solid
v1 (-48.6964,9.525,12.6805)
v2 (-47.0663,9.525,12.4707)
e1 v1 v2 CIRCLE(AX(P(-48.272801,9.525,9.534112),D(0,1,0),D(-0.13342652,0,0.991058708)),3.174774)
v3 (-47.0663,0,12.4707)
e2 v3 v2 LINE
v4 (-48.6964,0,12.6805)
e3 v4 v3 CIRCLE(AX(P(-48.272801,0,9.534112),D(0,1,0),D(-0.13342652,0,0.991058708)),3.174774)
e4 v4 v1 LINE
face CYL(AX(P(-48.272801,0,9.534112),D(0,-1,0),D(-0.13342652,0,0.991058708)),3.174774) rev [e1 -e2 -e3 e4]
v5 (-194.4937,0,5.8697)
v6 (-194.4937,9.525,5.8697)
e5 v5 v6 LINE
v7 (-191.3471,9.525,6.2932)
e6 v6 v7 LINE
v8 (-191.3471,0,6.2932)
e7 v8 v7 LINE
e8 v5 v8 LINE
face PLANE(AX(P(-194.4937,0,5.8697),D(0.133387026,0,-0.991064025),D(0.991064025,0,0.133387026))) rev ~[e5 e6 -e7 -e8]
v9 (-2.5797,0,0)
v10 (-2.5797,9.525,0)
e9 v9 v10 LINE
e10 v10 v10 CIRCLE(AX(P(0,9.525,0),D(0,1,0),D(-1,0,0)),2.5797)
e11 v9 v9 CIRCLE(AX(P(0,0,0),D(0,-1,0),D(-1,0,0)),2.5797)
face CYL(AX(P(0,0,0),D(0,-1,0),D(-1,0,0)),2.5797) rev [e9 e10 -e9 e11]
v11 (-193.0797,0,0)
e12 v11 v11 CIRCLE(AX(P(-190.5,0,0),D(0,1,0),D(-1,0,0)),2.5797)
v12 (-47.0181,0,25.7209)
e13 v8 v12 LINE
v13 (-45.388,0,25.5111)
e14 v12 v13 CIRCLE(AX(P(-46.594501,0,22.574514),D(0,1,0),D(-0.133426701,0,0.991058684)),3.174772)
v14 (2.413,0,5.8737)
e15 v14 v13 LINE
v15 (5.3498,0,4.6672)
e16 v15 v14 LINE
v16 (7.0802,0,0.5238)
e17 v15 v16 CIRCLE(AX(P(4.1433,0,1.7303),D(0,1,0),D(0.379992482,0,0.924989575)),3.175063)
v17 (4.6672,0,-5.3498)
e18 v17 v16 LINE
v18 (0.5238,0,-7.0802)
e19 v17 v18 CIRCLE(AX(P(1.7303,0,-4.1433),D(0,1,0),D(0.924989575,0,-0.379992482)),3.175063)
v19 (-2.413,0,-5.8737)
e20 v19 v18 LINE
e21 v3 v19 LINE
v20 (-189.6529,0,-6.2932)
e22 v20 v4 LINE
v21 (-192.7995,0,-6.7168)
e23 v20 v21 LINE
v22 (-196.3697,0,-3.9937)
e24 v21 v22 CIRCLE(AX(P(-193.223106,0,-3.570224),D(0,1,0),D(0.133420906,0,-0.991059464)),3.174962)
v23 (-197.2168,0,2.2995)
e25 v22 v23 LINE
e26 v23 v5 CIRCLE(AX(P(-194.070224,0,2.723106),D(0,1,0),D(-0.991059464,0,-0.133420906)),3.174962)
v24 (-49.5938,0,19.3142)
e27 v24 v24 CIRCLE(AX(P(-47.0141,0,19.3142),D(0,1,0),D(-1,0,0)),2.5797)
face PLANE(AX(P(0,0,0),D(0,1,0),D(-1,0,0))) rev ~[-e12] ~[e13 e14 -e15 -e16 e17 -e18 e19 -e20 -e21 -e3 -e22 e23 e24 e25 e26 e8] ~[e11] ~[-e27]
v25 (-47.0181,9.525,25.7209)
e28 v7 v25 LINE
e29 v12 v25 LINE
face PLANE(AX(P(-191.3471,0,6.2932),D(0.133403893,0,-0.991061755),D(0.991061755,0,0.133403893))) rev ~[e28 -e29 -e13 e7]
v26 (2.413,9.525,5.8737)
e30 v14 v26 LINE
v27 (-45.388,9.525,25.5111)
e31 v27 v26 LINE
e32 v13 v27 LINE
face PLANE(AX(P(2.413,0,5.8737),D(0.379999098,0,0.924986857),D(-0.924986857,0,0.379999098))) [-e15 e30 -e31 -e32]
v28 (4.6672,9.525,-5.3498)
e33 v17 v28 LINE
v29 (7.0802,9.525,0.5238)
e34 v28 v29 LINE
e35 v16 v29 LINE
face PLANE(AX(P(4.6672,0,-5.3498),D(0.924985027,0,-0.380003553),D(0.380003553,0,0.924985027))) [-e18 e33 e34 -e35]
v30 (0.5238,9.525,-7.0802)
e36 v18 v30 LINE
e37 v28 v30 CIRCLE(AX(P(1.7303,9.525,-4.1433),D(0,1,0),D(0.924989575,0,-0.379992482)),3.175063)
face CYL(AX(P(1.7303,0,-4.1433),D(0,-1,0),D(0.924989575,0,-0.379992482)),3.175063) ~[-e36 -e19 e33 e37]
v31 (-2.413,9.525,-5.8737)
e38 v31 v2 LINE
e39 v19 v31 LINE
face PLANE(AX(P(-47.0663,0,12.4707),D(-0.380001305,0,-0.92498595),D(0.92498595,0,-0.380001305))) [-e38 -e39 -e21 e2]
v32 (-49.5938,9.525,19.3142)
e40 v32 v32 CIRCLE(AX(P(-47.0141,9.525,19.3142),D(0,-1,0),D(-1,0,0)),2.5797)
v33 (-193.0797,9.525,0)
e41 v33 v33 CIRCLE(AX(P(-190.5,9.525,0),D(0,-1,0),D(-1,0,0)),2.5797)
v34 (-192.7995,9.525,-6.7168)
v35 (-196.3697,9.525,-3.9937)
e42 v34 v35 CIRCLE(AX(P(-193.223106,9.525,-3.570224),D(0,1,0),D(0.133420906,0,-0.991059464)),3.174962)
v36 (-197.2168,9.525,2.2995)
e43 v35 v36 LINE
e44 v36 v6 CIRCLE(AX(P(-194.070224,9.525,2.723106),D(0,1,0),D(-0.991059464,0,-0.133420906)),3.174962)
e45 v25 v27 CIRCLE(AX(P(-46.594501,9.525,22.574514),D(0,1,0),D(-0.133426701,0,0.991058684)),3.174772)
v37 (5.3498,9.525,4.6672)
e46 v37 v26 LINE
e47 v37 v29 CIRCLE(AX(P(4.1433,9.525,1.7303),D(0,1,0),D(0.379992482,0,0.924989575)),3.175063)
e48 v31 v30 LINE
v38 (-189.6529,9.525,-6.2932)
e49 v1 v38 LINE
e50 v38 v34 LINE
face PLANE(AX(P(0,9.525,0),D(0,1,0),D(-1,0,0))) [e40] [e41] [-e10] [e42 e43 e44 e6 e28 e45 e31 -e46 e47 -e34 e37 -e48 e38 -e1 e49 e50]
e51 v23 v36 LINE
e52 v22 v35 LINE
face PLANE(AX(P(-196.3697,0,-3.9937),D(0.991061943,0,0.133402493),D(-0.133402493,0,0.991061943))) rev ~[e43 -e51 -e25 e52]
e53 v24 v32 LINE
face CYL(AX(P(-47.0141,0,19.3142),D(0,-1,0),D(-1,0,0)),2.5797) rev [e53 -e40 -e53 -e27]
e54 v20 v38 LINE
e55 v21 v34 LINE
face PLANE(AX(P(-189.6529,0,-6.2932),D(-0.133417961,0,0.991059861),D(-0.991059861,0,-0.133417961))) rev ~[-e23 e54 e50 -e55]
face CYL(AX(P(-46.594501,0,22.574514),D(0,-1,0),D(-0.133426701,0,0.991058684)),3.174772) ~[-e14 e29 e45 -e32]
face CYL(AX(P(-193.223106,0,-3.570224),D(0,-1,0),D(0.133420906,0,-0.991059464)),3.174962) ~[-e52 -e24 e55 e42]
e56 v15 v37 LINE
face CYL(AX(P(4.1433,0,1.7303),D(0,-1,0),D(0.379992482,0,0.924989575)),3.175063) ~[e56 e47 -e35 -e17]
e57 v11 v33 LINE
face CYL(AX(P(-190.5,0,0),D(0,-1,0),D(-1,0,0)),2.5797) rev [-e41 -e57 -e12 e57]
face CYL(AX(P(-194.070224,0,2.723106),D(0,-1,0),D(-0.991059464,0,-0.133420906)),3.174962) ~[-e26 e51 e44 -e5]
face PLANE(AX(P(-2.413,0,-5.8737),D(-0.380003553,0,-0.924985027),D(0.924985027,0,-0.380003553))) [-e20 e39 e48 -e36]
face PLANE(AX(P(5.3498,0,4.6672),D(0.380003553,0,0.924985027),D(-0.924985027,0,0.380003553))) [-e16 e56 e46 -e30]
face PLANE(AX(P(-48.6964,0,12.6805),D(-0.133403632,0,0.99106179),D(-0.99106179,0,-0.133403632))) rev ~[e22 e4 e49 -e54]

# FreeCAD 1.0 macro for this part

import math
import FreeCAD as App
import Part
import Sketcher
Q = App.Units.Quantity

doc = App.newDocument("Part")
body = doc.addObject("PartDesign::Body", "Body")

# Sketch on XZ plane
sketch1 = body.newObject("Sketcher::SketchObject", "Sketch")
sketch1.AttachmentSupport = (doc.getObject("XZ_Plane"), [""])
sketch1.MapMode = "FlatFace"
sketch1.addGeometry(Part.LineSegment(App.Vector(-48.6964, 12.6805, 0), App.Vector(-189.6529, -6.2932, 0)), False)
sketch1.addGeometry(Part.LineSegment(App.Vector(-189.6529, -6.2932, 0), App.Vector(-192.7995, -6.7168, 0)), False)
sketch1.addGeometry(Part.ArcOfCircle(Part.Circle(App.Vector(-193.2231, -3.5702, 0), App.Vector(0, 0, 1), 3.174985), math.radians(-172.33464), math.radians(-82.332852)), False)
sketch1.addGeometry(Part.LineSegment(App.Vector(-196.3697, -3.9937, 0), App.Vector(-197.2168, 2.2995, 0)), False)
sketch1.addGeometry(Part.ArcOfCircle(Part.Circle(App.Vector(-194.0702, 2.7231, 0), App.Vector(0, 0, 1), 3.174985), math.radians(97.66536), math.radians(187.667148)), False)
sketch1.addGeometry(Part.LineSegment(App.Vector(-194.4937, 5.8697, 0), App.Vector(-191.3471, 6.2932, 0)), False)
sketch1.addGeometry(Part.LineSegment(App.Vector(-191.3471, 6.2932, 0), App.Vector(-47.0181, 25.7209, 0)), False)
sketch1.addGeometry(Part.ArcOfCircle(Part.Circle(App.Vector(-46.5945, 22.5743, 0), App.Vector(0, 0, 1), 3.174985), math.radians(67.666097), math.radians(97.667148)), False)
sketch1.addGeometry(Part.LineSegment(App.Vector(-45.388, 25.5111, 0), App.Vector(2.413, 5.8737, 0)), False)
sketch1.addGeometry(Part.LineSegment(App.Vector(2.413, 5.8737, 0), App.Vector(5.3498, 4.6672, 0)), False)
sketch1.addGeometry(Part.ArcOfCircle(Part.Circle(App.Vector(4.1433, 1.7303, 0), App.Vector(0, 0, 1), 3.175063), math.radians(-22.333217), math.radians(67.666783)), False)
sketch1.addGeometry(Part.LineSegment(App.Vector(7.0802, 0.5238, 0), App.Vector(4.6672, -5.3498, 0)), False)
sketch1.addGeometry(Part.ArcOfCircle(Part.Circle(App.Vector(1.7303, -4.1433, 0), App.Vector(0, 0, 1), 3.175063), math.radians(-112.333217), math.radians(-22.333217)), False)
sketch1.addGeometry(Part.LineSegment(App.Vector(0.5238, -7.0802, 0), App.Vector(-2.413, -5.8737, 0)), False)
sketch1.addGeometry(Part.LineSegment(App.Vector(-2.413, -5.8737, 0), App.Vector(-47.0663, 12.4707, 0)), False)
sketch1.addGeometry(Part.ArcOfCircle(Part.Circle(App.Vector(-48.2728, 9.5338, 0), App.Vector(0, 0, 1), 3.175084), math.radians(67.666783), math.radians(97.666907)), False)
sketch1.addGeometry(Part.Circle(App.Vector(0, 0, 0), App.Vector(0, 0, 1), 2.5797), False)
sketch1.addGeometry(Part.Circle(App.Vector(-47.0141, 19.3142, 0), App.Vector(0, 0, 1), 2.5797), False)
sketch1.addGeometry(Part.Circle(App.Vector(-190.5, 0, 0), App.Vector(0, 0, 1), 2.5797), False)
sketch1.addConstraint(Sketcher.Constraint("Coincident", 0, 2, 1, 1))
sketch1.addConstraint(Sketcher.Constraint("Tangent", 1, 2, 2, 2))
sketch1.addConstraint(Sketcher.Constraint("Tangent", 2, 1, 3, 1))
sketch1.addConstraint(Sketcher.Constraint("Tangent", 3, 2, 4, 2))
sketch1.addConstraint(Sketcher.Constraint("Tangent", 4, 1, 5, 1))
sketch1.addConstraint(Sketcher.Constraint("Coincident", 5, 2, 6, 1))
sketch1.addConstraint(Sketcher.Constraint("Tangent", 6, 2, 7, 2))
sketch1.addConstraint(Sketcher.Constraint("Tangent", 7, 1, 8, 1))
sketch1.addConstraint(Sketcher.Constraint("Coincident", 8, 2, 9, 1))
sketch1.addConstraint(Sketcher.Constraint("Tangent", 9, 2, 10, 2))
sketch1.addConstraint(Sketcher.Constraint("Tangent", 10, 1, 11, 1))
sketch1.addConstraint(Sketcher.Constraint("Tangent", 11, 2, 12, 2))
sketch1.addConstraint(Sketcher.Constraint("Tangent", 12, 1, 13, 1))
sketch1.addConstraint(Sketcher.Constraint("Coincident", 13, 2, 14, 1))
sketch1.addConstraint(Sketcher.Constraint("Tangent", 14, 2, 15, 1))
sketch1.addConstraint(Sketcher.Constraint("Tangent", 15, 2, 0, 1))
sketch1.addConstraint(Sketcher.Constraint("Coincident", 16, 3, -1, 1))
sketch1.addConstraint(Sketcher.Constraint("Equal", 2, 4))
sketch1.addConstraint(Sketcher.Constraint("Equal", 4, 7))
sketch1.addConstraint(Sketcher.Constraint("Equal", 7, 10))
sketch1.addConstraint(Sketcher.Constraint("Equal", 10, 12))
sketch1.addConstraint(Sketcher.Constraint("Equal", 12, 15))
sketch1.addConstraint(Sketcher.Constraint("Equal", 16, 17))
sketch1.addConstraint(Sketcher.Constraint("Equal", 17, 18))
sketch1.addConstraint(Sketcher.Constraint("Symmetric", 8, 2, 13, 2, -1, 1))
sketch1.addConstraint(Sketcher.Constraint("PointOnObject", 18, 3, -1))
sketch1.addConstraint(Sketcher.Constraint("Parallel", 0, 1))
sketch1.addConstraint(Sketcher.Constraint("Perpendicular", 1, 3))
sketch1.addConstraint(Sketcher.Constraint("Perpendicular", 3, 5))
sketch1.addConstraint(Sketcher.Constraint("Parallel", 5, 6))
sketch1.addConstraint(Sketcher.Constraint("Parallel", 8, 9))
sketch1.addConstraint(Sketcher.Constraint("Perpendicular", 9, 11))
sketch1.addConstraint(Sketcher.Constraint("Perpendicular", 11, 13))
sketch1.addConstraint(Sketcher.Constraint("Parallel", 13, 14))
sketch1.addConstraint(Sketcher.Constraint("Equal", 1, 5))
sketch1.addConstraint(Sketcher.Constraint("Equal", 5, 9))
sketch1.addConstraint(Sketcher.Constraint("Equal", 3, 11))
sketch1.addConstraint(Sketcher.Constraint("Equal", 9, 13))
sketch1.addConstraint(Sketcher.Constraint("Diameter", 16, Q("0.203126 in")))
sketch1.addConstraint(Sketcher.Constraint("Radius", 2, Q("0.125 in")))
sketch1.addConstraint(Sketcher.Constraint("DistanceX", 18, 3, -1, 1, Q("7.5 in")))
sketch1.addConstraint(Sketcher.Constraint("Distance", 3, Q("0.25 in")))
sketch1.addConstraint(Sketcher.Constraint("Distance", 1, Q("0.125 in")))
sketch1.addConstraint(Sketcher.Constraint("DistanceX", -1, 1, 8, 2, Q("0.095 in")))
sketch1.addConstraint(Sketcher.Constraint("DistanceX", 14, 2, -1, 1, Q("1.853 in")))
sketch1.addConstraint(Sketcher.Constraint("Distance", 6, Q("5.7335 in")))
sketch1.addConstraint(Sketcher.Constraint("DistanceX", 2, 3, -1, 1, Q("7.6072 in")))
sketch1.addConstraint(Sketcher.Constraint("DistanceY", -1, 1, 17, 3, Q("0.7604 in")))
sketch1.addConstraint(Sketcher.Constraint("DistanceX", 0, 2, 17, 3, Q("5.6157 in")))
pad1 = body.newObject("PartDesign::Pad", "Pad")
pad1.Profile = sketch1
pad1.Length = Q("0.375 in")
pad1.Reversed = True

doc.recompute()
